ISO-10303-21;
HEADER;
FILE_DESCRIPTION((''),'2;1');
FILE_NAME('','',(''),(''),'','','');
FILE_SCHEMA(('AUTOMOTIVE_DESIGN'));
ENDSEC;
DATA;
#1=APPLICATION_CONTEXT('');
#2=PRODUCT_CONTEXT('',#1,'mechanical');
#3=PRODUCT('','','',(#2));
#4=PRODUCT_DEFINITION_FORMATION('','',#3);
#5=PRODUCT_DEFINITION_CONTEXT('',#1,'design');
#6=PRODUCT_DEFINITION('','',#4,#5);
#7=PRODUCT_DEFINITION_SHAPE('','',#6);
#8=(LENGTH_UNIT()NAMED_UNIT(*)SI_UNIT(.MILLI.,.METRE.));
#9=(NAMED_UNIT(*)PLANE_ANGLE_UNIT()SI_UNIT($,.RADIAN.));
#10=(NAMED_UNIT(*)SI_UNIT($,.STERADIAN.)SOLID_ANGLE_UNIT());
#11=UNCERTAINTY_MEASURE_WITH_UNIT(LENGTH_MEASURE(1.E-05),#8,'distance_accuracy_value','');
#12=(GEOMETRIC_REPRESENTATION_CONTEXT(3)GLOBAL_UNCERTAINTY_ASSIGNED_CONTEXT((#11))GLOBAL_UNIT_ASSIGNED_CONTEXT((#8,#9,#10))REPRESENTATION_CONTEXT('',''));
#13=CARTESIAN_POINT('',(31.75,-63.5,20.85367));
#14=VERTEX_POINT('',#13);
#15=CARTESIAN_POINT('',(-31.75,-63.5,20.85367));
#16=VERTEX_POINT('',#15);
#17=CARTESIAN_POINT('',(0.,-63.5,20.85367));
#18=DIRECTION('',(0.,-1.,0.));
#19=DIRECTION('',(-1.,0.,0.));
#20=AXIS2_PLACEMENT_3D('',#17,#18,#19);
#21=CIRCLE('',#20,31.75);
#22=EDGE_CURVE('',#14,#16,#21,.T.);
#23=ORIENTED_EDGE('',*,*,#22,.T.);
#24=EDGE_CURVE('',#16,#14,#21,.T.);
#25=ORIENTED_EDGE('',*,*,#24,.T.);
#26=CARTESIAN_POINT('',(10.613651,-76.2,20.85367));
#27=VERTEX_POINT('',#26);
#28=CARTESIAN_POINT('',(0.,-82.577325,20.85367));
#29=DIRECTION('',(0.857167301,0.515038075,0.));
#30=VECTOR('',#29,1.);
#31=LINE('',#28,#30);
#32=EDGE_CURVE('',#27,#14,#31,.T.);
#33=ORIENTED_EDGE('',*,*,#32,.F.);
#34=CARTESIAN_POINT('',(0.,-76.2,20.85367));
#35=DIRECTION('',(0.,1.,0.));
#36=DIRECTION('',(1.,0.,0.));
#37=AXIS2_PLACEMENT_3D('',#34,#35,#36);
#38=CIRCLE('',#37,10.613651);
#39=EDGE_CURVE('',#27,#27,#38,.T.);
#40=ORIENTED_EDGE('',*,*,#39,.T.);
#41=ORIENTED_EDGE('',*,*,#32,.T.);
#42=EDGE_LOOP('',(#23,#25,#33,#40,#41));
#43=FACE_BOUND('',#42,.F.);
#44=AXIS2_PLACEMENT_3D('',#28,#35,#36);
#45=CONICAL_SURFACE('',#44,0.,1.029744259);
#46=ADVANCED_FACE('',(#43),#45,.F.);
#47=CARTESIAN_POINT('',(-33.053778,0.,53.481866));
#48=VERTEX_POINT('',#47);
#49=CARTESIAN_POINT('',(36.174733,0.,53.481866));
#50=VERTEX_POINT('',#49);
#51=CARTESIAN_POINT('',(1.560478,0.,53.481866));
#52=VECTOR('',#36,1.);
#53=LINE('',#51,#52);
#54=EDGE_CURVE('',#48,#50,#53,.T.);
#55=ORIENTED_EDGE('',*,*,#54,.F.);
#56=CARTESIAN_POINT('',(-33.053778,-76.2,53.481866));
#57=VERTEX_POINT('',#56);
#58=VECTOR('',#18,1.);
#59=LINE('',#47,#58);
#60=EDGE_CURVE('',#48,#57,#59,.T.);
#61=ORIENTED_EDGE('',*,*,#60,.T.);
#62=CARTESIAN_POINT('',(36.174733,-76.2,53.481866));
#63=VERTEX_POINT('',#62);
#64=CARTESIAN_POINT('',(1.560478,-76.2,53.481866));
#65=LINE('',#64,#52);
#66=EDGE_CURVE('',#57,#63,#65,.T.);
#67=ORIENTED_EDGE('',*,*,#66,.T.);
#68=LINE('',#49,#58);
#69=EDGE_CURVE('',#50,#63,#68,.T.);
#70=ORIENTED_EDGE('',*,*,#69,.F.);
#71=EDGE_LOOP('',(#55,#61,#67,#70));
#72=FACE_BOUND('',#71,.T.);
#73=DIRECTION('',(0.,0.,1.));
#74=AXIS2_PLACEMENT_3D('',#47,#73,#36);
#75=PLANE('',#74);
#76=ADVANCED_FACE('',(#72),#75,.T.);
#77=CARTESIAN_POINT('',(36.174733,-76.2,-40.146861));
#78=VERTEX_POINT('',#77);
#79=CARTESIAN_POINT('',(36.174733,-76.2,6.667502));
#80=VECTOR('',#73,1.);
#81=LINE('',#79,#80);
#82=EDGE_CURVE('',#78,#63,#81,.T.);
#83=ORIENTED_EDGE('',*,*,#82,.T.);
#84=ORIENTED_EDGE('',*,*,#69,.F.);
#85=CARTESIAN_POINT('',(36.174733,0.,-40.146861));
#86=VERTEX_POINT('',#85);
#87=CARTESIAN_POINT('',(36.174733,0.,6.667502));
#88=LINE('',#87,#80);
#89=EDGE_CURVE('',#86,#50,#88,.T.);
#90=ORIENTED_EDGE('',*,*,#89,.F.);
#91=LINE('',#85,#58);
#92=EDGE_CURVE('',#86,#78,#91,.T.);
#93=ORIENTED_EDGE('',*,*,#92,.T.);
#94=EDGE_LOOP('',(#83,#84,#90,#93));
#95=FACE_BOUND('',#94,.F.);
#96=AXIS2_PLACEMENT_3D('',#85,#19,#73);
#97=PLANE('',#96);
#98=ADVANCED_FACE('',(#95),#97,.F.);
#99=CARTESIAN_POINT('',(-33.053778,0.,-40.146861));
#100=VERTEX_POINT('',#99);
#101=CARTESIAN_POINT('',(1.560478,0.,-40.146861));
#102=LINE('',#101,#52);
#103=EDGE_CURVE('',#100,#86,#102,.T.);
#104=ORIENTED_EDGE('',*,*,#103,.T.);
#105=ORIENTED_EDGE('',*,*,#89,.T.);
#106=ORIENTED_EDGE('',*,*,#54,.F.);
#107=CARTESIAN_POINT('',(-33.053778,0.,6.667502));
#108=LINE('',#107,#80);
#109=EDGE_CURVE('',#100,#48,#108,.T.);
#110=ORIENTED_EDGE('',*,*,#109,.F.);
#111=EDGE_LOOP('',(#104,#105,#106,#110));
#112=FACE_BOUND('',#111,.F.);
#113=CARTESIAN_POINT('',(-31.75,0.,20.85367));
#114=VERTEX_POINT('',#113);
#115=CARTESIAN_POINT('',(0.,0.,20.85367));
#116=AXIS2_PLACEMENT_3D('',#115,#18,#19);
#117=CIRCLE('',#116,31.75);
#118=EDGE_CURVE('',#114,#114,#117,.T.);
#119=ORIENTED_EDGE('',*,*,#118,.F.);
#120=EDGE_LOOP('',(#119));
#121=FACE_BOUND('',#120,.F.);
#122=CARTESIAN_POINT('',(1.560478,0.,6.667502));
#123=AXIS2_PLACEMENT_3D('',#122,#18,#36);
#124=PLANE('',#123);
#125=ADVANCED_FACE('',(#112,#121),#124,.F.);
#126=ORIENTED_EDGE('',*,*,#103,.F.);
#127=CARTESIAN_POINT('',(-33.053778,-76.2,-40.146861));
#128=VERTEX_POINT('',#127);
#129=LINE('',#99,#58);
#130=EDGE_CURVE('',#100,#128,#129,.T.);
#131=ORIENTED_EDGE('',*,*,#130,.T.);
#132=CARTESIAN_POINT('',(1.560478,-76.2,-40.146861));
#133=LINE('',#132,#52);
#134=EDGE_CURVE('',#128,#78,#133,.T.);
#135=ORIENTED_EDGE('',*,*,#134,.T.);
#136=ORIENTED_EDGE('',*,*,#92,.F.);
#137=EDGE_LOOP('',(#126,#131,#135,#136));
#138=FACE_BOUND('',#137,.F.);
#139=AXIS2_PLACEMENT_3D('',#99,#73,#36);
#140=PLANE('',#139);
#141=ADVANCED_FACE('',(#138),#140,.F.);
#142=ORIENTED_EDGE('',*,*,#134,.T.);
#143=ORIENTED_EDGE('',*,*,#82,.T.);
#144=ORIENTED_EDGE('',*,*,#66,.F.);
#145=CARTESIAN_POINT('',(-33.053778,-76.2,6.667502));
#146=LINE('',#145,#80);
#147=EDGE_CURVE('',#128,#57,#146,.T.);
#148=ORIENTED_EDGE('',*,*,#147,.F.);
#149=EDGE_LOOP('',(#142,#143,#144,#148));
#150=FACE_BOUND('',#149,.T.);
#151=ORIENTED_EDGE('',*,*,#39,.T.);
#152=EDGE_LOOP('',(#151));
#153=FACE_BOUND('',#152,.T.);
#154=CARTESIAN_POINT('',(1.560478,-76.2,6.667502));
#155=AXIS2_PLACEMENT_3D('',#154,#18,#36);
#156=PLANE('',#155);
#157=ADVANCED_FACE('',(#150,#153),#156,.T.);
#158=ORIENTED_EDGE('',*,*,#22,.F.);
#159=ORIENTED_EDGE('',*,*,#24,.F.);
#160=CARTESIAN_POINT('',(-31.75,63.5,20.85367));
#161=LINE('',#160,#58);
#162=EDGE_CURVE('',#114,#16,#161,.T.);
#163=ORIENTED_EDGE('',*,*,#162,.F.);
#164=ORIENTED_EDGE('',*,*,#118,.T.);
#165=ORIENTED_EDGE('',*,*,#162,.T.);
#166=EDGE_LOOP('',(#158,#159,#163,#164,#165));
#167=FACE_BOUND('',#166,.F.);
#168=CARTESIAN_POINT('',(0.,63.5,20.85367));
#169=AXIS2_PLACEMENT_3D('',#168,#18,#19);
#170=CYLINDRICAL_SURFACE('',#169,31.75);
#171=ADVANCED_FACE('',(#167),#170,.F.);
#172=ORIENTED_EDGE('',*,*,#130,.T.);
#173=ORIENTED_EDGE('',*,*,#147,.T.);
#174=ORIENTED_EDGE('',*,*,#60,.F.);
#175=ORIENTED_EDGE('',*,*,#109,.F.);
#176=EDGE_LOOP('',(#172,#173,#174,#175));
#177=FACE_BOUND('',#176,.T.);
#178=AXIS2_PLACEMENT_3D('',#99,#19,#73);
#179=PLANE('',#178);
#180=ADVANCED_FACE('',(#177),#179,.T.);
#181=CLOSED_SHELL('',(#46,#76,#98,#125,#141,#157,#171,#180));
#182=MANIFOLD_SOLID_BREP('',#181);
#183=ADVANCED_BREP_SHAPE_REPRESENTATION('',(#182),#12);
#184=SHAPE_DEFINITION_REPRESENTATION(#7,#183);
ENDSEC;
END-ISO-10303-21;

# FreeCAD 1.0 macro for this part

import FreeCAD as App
import Part
import Sketcher

V = App.Vector
Q = App.Units.Quantity


def add_polygon(sketch, points):
    """Adds a closed chain of lines whose ends are joined by coincident constraints."""
    first, n = sketch.GeometryCount, len(points)
    for a, b in zip(points, points[1:] + points[:1]):
        sketch.addGeometry(Part.LineSegment(App.Vector(*a, 0), App.Vector(*b, 0)), False)
    for i in range(n):
        sketch.addConstraint(Sketcher.Constraint("Coincident", first + i, 2, first + (i + 1) % n, 1))

doc = App.newDocument("Part")
body = doc.addObject("PartDesign::Body", "Body")

# Sketch on XZ plane
sketch1 = body.newObject("Sketcher::SketchObject", "Sketch")
sketch1.AttachmentSupport = (doc.getObject("XZ_Plane"), [""])
sketch1.MapMode = "FlatFace"
add_polygon(sketch1, [(-33.053778, 53.481866), (-33.053778, -40.146861), (36.174733, -40.146861), (36.174733, 53.481866)])  # lines 0-3
sketch1.addConstraint([
    Sketcher.Constraint("Vertical", 0),
    Sketcher.Constraint("Horizontal", 1),
    Sketcher.Constraint("Vertical", 2),
    Sketcher.Constraint("Horizontal", 3),
    Sketcher.Constraint("DistanceX", 1, 1, 1, 2, 69.228511),
    Sketcher.Constraint("DistanceY", 0, 2, 0, 1, 93.628727),
    Sketcher.Constraint("DistanceX", 0, 2, -1, 1, 33.053778),
    Sketcher.Constraint("DistanceY", 0, 2, -1, 1, 40.146861),
])
pad1 = body.newObject("PartDesign::Pad", "Pad")
pad1.Profile = sketch1
pad1.Length = Q("3 in")

# Sketch on XZ plane
sketch2 = body.newObject("Sketcher::SketchObject", "Sketch001")
sketch2.AttachmentSupport = (doc.getObject("XZ_Plane"), [""])
sketch2.MapMode = "FlatFace"
sketch2.addGeometry(Part.Circle(V(0, 20.85367, 0), V(0, 0, 1), 31.75), False)
sketch2.addConstraint([
    Sketcher.Constraint("PointOnObject", 0, 3, -2),
    Sketcher.Constraint("Diameter", 0, Q("2.5 in")),
    Sketcher.Constraint("DistanceY", -1, 1, 0, 3, 20.85367),
])
doc.recompute()
hole = body.newObject("PartDesign::Hole", "Hole")
hole.Profile = sketch2
hole.ThreadType = "None"
hole.Diameter = Q("2.5 in")
hole.DepthType = "Dimension"
hole.Depth = Q("2.5 in")
hole.DrillPoint = "Angled"
hole.DrillPointAngle = 118
hole.Reversed = True

doc.recompute()
